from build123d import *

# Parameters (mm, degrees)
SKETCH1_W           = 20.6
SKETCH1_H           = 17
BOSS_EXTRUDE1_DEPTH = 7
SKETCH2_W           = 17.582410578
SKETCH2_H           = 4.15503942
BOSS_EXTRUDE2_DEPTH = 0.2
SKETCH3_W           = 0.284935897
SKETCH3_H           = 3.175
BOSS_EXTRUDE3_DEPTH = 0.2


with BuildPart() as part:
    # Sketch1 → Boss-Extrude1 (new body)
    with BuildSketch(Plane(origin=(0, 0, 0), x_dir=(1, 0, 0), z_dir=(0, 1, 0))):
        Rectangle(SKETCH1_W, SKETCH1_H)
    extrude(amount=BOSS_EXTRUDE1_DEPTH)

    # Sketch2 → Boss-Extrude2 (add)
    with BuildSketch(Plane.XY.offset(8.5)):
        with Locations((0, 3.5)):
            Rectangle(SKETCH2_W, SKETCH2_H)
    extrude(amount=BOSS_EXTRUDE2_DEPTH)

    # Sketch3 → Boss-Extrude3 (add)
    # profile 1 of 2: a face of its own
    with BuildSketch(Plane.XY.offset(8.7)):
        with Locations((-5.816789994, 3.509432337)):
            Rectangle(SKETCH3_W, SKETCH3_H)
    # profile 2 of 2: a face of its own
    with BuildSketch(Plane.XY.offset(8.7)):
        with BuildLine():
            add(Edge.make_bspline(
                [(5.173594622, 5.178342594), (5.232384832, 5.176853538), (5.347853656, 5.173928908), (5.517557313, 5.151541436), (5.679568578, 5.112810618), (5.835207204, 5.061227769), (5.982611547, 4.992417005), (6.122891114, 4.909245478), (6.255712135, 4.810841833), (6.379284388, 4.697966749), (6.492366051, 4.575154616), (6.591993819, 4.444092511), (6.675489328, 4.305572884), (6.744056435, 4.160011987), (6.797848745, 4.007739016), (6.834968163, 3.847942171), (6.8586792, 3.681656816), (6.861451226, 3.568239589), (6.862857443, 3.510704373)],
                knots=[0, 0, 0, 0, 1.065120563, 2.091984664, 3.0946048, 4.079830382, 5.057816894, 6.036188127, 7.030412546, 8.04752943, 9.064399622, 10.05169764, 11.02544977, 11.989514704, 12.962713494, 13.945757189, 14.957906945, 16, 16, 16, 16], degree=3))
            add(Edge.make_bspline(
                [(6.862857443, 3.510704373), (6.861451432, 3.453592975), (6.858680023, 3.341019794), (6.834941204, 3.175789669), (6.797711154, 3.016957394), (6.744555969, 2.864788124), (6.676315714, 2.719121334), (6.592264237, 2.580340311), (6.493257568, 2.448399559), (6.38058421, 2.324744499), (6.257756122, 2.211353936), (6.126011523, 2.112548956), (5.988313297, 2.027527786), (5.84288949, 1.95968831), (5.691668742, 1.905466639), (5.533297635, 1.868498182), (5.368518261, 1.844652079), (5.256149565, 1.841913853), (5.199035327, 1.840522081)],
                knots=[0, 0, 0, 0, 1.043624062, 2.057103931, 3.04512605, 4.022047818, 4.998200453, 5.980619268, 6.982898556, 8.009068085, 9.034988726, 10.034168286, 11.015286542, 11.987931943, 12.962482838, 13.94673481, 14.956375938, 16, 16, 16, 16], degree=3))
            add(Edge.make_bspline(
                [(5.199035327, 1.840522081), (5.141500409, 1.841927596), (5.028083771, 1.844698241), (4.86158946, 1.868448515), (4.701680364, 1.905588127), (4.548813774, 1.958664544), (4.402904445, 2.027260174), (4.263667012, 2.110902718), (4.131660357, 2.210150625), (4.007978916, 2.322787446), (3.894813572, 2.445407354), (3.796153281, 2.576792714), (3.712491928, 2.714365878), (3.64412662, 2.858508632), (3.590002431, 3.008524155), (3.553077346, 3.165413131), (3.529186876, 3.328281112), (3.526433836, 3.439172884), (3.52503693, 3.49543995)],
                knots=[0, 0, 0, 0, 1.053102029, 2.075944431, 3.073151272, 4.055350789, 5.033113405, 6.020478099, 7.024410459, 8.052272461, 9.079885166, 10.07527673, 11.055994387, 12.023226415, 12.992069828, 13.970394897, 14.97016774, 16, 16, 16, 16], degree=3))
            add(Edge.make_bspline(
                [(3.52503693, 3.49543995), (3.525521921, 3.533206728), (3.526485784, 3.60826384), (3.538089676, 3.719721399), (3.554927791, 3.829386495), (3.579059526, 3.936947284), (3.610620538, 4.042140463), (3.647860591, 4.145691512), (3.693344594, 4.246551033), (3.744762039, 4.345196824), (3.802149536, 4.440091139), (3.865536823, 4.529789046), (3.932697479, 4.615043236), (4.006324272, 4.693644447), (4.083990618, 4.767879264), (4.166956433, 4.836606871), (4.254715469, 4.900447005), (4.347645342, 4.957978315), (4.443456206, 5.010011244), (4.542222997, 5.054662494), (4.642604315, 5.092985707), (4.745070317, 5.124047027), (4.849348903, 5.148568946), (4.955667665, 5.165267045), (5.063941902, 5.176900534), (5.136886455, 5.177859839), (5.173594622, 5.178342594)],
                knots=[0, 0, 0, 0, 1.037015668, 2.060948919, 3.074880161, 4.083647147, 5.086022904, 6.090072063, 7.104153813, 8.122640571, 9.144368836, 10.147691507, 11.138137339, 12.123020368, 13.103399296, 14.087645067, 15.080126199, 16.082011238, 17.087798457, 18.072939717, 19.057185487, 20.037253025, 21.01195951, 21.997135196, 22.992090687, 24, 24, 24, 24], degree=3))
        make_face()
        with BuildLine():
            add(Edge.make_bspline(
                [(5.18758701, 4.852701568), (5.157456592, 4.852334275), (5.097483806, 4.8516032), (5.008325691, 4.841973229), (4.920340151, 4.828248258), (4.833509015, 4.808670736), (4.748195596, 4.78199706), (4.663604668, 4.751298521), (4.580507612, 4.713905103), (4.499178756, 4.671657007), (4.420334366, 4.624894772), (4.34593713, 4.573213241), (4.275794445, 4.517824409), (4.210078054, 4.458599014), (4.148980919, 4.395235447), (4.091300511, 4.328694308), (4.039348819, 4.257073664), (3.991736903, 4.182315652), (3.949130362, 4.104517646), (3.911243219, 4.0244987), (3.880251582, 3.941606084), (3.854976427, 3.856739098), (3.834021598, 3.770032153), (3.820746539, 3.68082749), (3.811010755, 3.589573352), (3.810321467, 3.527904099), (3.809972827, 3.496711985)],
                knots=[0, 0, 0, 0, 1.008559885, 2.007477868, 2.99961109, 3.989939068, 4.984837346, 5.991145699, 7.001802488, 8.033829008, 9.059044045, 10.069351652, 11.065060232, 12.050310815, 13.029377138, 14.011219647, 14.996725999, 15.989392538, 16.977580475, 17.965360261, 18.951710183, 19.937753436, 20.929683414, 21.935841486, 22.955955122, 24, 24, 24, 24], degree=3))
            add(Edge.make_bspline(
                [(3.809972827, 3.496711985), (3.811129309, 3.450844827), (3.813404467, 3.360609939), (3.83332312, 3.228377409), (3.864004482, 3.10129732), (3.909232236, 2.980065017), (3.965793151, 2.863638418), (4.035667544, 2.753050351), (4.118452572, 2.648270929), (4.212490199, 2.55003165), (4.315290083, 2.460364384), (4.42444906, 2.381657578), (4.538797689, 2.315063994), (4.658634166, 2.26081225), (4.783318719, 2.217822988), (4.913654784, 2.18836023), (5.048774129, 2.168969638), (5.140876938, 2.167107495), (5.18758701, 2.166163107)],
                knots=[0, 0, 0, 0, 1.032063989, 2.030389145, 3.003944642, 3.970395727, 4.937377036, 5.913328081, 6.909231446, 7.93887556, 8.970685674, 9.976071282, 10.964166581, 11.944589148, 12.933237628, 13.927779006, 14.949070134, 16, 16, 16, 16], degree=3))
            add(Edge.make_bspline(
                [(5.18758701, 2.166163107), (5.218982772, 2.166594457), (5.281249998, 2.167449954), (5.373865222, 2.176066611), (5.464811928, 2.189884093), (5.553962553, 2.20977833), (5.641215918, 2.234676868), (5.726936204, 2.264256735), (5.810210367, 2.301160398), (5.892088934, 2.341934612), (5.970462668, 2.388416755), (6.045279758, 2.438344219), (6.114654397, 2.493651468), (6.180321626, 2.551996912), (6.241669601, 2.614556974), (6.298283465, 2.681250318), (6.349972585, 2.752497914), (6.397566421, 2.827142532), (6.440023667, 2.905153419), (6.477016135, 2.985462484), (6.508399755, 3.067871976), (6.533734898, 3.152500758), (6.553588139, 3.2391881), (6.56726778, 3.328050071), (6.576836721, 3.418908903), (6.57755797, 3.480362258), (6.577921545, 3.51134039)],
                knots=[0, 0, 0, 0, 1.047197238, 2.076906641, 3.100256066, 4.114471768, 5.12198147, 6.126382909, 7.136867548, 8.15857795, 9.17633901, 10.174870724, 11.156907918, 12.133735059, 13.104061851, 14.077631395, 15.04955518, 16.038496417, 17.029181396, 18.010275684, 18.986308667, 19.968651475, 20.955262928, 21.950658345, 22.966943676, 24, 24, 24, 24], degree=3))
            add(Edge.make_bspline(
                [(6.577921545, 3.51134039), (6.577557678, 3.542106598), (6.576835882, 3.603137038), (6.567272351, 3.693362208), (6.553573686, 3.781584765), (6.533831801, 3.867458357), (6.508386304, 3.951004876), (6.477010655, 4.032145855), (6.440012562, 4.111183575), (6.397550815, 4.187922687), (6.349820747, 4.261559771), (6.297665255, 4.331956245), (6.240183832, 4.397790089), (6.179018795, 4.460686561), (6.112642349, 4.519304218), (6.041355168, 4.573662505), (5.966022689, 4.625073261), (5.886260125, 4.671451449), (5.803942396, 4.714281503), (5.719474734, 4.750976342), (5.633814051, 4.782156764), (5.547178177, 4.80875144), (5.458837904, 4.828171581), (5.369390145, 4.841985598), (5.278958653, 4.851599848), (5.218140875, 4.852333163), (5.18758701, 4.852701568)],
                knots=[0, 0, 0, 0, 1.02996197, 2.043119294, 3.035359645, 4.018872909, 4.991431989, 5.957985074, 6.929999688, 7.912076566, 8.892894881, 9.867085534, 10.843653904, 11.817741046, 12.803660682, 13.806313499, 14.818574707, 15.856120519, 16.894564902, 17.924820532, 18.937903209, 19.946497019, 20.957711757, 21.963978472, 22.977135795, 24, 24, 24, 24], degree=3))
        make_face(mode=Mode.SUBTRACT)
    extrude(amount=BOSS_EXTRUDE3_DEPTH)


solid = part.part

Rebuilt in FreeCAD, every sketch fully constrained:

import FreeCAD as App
import Part
import Sketcher


def add_polygon(sketch, points):
    """Adds a closed chain of lines whose ends are joined by coincident constraints."""
    first, n = sketch.GeometryCount, len(points)
    for a, b in zip(points, points[1:] + points[:1]):
        sketch.addGeometry(Part.LineSegment(App.Vector(*a, 0), App.Vector(*b, 0)), False)
    for i in range(n):
        sketch.addConstraint(Sketcher.Constraint("Coincident", first + i, 2, first + (i + 1) % n, 1))

doc = App.newDocument("Part")
body = doc.addObject("PartDesign::Body", "Body")

# Sketch on XZ plane
sketch1 = body.newObject("Sketcher::SketchObject", "Sketch")
sketch1.AttachmentSupport = (doc.getObject("XZ_Plane"), [""])
sketch1.MapMode = "FlatFace"
add_polygon(sketch1, [(-10.3, -8.5), (-10.3, 8.5), (10.3, 8.5), (10.3, -8.5)])  # lines 0-3
sketch1.addConstraint([
    Sketcher.Constraint("Vertical", 0),
    Sketcher.Constraint("Horizontal", 1),
    Sketcher.Constraint("Vertical", 2),
    Sketcher.Constraint("Horizontal", 3),
    Sketcher.Constraint("Symmetric", 0, 2, 2, 2, -1, 1),
    Sketcher.Constraint("DistanceY", 0, 1, 0, 2, 17.0),
    Sketcher.Constraint("DistanceX", 1, 1, 1, 2, 20.6),
])
pad1 = body.newObject("PartDesign::Pad", "Pad")
pad1.Profile = sketch1
pad1.Length = 7
pad1.Reversed = True

# Sketch on XY plane
sketch2 = body.newObject("Sketcher::SketchObject", "Sketch001")
sketch2.AttachmentSupport = (doc.getObject("XY_Plane"), [""])
sketch2.MapMode = "FlatFace"
sketch2.AttachmentOffset = App.Placement(App.Vector(0, 0, 8.5), App.Rotation())
add_polygon(sketch2, [(-8.791205, 5.57752), (-8.791205, 1.42248), (8.791205, 1.42248), (8.791205, 5.57752)])  # lines 0-3
sketch2.addConstraint([
    Sketcher.Constraint("Vertical", 0),
    Sketcher.Constraint("Horizontal", 1),
    Sketcher.Constraint("Vertical", 2),
    Sketcher.Constraint("Horizontal", 3),
    Sketcher.Constraint("DistanceX", 1, 1, 1, 2, 17.582411),
    Sketcher.Constraint("DistanceY", 0, 2, 0, 1, 4.155039),
    Sketcher.Constraint("DistanceY", -1, 1, 0, 2, 1.42248),
    Sketcher.Constraint("DistanceX", 0, 2, -1, 1, 8.791205),
])
pad2 = body.newObject("PartDesign::Pad", "Pad001")
pad2.Profile = sketch2
pad2.Length = 0.2

# Sketch on XY plane
sketch3 = body.newObject("Sketcher::SketchObject", "Sketch002")
sketch3.AttachmentSupport = (doc.getObject("XY_Plane"), [""])
sketch3.MapMode = "FlatFace"
sketch3.AttachmentOffset = App.Placement(App.Vector(0, 0, 8.7), App.Rotation())
add_polygon(sketch3, [(-5.959258, 5.096932), (-5.959258, 1.921932), (-5.674322, 1.921932), (-5.674322, 5.096932)])  # lines 0-3
sketch3.addGeometry(Part.BSplineCurve([App.Vector(5.173595, 5.178343, 0), App.Vector(5.232385, 5.176854, 0), App.Vector(5.347854, 5.173929, 0), App.Vector(5.517557, 5.151541, 0), App.Vector(5.679569, 5.112811, 0), App.Vector(5.835207, 5.061228, 0), App.Vector(5.982612, 4.992417, 0), App.Vector(6.122891, 4.909245, 0), App.Vector(6.255712, 4.810842, 0), App.Vector(6.379284, 4.697967, 0), App.Vector(6.492366, 4.575155, 0), App.Vector(6.591994, 4.444093, 0), App.Vector(6.675489, 4.305573, 0), App.Vector(6.744056, 4.160012, 0), App.Vector(6.797849, 4.007739, 0), App.Vector(6.834968, 3.847942, 0), App.Vector(6.858679, 3.681657, 0), App.Vector(6.861451, 3.56824, 0), App.Vector(6.862857, 3.510704, 0)], [4, 1, 1, 1, 1, 1, 1, 1, 1, 1, 1, 1, 1, 1, 1, 1, 4], [0, 1.065120563, 2.091984664, 3.0946048, 4.079830382, 5.057816894, 6.036188127, 7.030412546, 8.04752943, 9.064399622, 10.05169764, 11.02544977, 11.989514704, 12.962713494, 13.945757189, 14.957906945, 16], False, 3, [1, 1, 1, 1, 1, 1, 1, 1, 1, 1, 1, 1, 1, 1, 1, 1, 1, 1, 1], False), False)  # 4
sketch3.addGeometry(Part.BSplineCurve([App.Vector(3.525037, 3.49544, 0), App.Vector(3.525522, 3.533207, 0), App.Vector(3.526486, 3.608264, 0), App.Vector(3.53809, 3.719721, 0), App.Vector(3.554928, 3.829386, 0), App.Vector(3.57906, 3.936947, 0), App.Vector(3.610621, 4.04214, 0), App.Vector(3.647861, 4.145692, 0), App.Vector(3.693345, 4.246551, 0), App.Vector(3.744762, 4.345197, 0), App.Vector(3.80215, 4.440091, 0), App.Vector(3.865537, 4.529789, 0), App.Vector(3.932697, 4.615043, 0), App.Vector(4.006324, 4.693644, 0), App.Vector(4.083991, 4.767879, 0), App.Vector(4.166956, 4.836607, 0), App.Vector(4.254715, 4.900447, 0), App.Vector(4.347645, 4.957978, 0), App.Vector(4.443456, 5.010011, 0), App.Vector(4.542223, 5.054662, 0), App.Vector(4.642604, 5.092986, 0), App.Vector(4.74507, 5.124047, 0), App.Vector(4.849349, 5.148569, 0), App.Vector(4.955668, 5.165267, 0), App.Vector(5.063942, 5.176901, 0), App.Vector(5.136886, 5.17786, 0), App.Vector(5.173595, 5.178343, 0)], [4, 1, 1, 1, 1, 1, 1, 1, 1, 1, 1, 1, 1, 1, 1, 1, 1, 1, 1, 1, 1, 1, 1, 1, 4], [0, 1.037015668, 2.060948919, 3.074880161, 4.083647147, 5.086022904, 6.090072063, 7.104153813, 8.122640571, 9.144368836, 10.147691507, 11.138137339, 12.123020368, 13.103399296, 14.087645067, 15.080126199, 16.082011238, 17.087798457, 18.072939717, 19.057185487, 20.037253025, 21.01195951, 21.997135196, 22.992090687, 24], False, 3, [1, 1, 1, 1, 1, 1, 1, 1, 1, 1, 1, 1, 1, 1, 1, 1, 1, 1, 1, 1, 1, 1, 1, 1, 1, 1, 1], False), False)  # 5
sketch3.addGeometry(Part.BSplineCurve([App.Vector(5.199035, 1.840522, 0), App.Vector(5.1415, 1.841928, 0), App.Vector(5.028084, 1.844698, 0), App.Vector(4.861589, 1.868449, 0), App.Vector(4.70168, 1.905588, 0), App.Vector(4.548814, 1.958665, 0), App.Vector(4.402904, 2.02726, 0), App.Vector(4.263667, 2.110903, 0), App.Vector(4.13166, 2.210151, 0), App.Vector(4.007979, 2.322787, 0), App.Vector(3.894814, 2.445407, 0), App.Vector(3.796153, 2.576793, 0), App.Vector(3.712492, 2.714366, 0), App.Vector(3.644127, 2.858509, 0), App.Vector(3.590002, 3.008524, 0), App.Vector(3.553077, 3.165413, 0), App.Vector(3.529187, 3.328281, 0), App.Vector(3.526434, 3.439173, 0), App.Vector(3.525037, 3.49544, 0)], [4, 1, 1, 1, 1, 1, 1, 1, 1, 1, 1, 1, 1, 1, 1, 1, 4], [0, 1.053102029, 2.075944431, 3.073151272, 4.055350789, 5.033113405, 6.020478099, 7.024410459, 8.052272461, 9.079885166, 10.07527673, 11.055994387, 12.023226415, 12.992069828, 13.970394897, 14.97016774, 16], False, 3, [1, 1, 1, 1, 1, 1, 1, 1, 1, 1, 1, 1, 1, 1, 1, 1, 1, 1, 1], False), False)  # 6
sketch3.addGeometry(Part.BSplineCurve([App.Vector(6.862857, 3.510704, 0), App.Vector(6.861451, 3.453593, 0), App.Vector(6.85868, 3.34102, 0), App.Vector(6.834941, 3.17579, 0), App.Vector(6.797711, 3.016957, 0), App.Vector(6.744556, 2.864788, 0), App.Vector(6.676316, 2.719121, 0), App.Vector(6.592264, 2.58034, 0), App.Vector(6.493258, 2.4484, 0), App.Vector(6.380584, 2.324744, 0), App.Vector(6.257756, 2.211354, 0), App.Vector(6.126012, 2.112549, 0), App.Vector(5.988313, 2.027528, 0), App.Vector(5.842889, 1.959688, 0), App.Vector(5.691669, 1.905467, 0), App.Vector(5.533298, 1.868498, 0), App.Vector(5.368518, 1.844652, 0), App.Vector(5.25615, 1.841914, 0), App.Vector(5.199035, 1.840522, 0)], [4, 1, 1, 1, 1, 1, 1, 1, 1, 1, 1, 1, 1, 1, 1, 1, 4], [0, 1.043624062, 2.057103931, 3.04512605, 4.022047818, 4.998200453, 5.980619268, 6.982898556, 8.009068085, 9.034988726, 10.034168286, 11.015286542, 11.987931943, 12.962482838, 13.94673481, 14.956375938, 16], False, 3, [1, 1, 1, 1, 1, 1, 1, 1, 1, 1, 1, 1, 1, 1, 1, 1, 1, 1, 1], False), False)  # 7
sketch3.addGeometry(Part.BSplineCurve([App.Vector(6.577922, 3.51134, 0), App.Vector(6.577558, 3.542107, 0), App.Vector(6.576836, 3.603137, 0), App.Vector(6.567272, 3.693362, 0), App.Vector(6.553574, 3.781585, 0), App.Vector(6.533832, 3.867458, 0), App.Vector(6.508386, 3.951005, 0), App.Vector(6.477011, 4.032146, 0), App.Vector(6.440013, 4.111184, 0), App.Vector(6.397551, 4.187923, 0), App.Vector(6.349821, 4.26156, 0), App.Vector(6.297665, 4.331956, 0), App.Vector(6.240184, 4.39779, 0), App.Vector(6.179019, 4.460687, 0), App.Vector(6.112642, 4.519304, 0), App.Vector(6.041355, 4.573663, 0), App.Vector(5.966023, 4.625073, 0), App.Vector(5.88626, 4.671451, 0), App.Vector(5.803942, 4.714282, 0), App.Vector(5.719475, 4.750976, 0), App.Vector(5.633814, 4.782157, 0), App.Vector(5.547178, 4.808751, 0), App.Vector(5.458838, 4.828172, 0), App.Vector(5.36939, 4.841986, 0), App.Vector(5.278959, 4.8516, 0), App.Vector(5.218141, 4.852333, 0), App.Vector(5.187587, 4.852702, 0)], [4, 1, 1, 1, 1, 1, 1, 1, 1, 1, 1, 1, 1, 1, 1, 1, 1, 1, 1, 1, 1, 1, 1, 1, 4], [0, 1.02996197, 2.043119294, 3.035359645, 4.018872909, 4.991431989, 5.957985074, 6.929999688, 7.912076566, 8.892894881, 9.867085534, 10.843653904, 11.817741046, 12.803660682, 13.806313499, 14.818574707, 15.856120519, 16.894564902, 17.924820532, 18.937903209, 19.946497019, 20.957711757, 21.963978472, 22.977135795, 24], False, 3, [1, 1, 1, 1, 1, 1, 1, 1, 1, 1, 1, 1, 1, 1, 1, 1, 1, 1, 1, 1, 1, 1, 1, 1, 1, 1, 1], False), False)  # 8
sketch3.addGeometry(Part.BSplineCurve([App.Vector(5.187587, 2.166163, 0), App.Vector(5.218983, 2.166594, 0), App.Vector(5.28125, 2.16745, 0), App.Vector(5.373865, 2.176067, 0), App.Vector(5.464812, 2.189884, 0), App.Vector(5.553963, 2.209778, 0), App.Vector(5.641216, 2.234677, 0), App.Vector(5.726936, 2.264257, 0), App.Vector(5.81021, 2.30116, 0), App.Vector(5.892089, 2.341935, 0), App.Vector(5.970463, 2.388417, 0), App.Vector(6.04528, 2.438344, 0), App.Vector(6.114654, 2.493651, 0), App.Vector(6.180322, 2.551997, 0), App.Vector(6.24167, 2.614557, 0), App.Vector(6.298283, 2.68125, 0), App.Vector(6.349973, 2.752498, 0), App.Vector(6.397566, 2.827143, 0), App.Vector(6.440024, 2.905153, 0), App.Vector(6.477016, 2.985462, 0), App.Vector(6.5084, 3.067872, 0), App.Vector(6.533735, 3.152501, 0), App.Vector(6.553588, 3.239188, 0), App.Vector(6.567268, 3.32805, 0), App.Vector(6.576837, 3.418909, 0), App.Vector(6.577558, 3.480362, 0), App.Vector(6.577922, 3.51134, 0)], [4, 1, 1, 1, 1, 1, 1, 1, 1, 1, 1, 1, 1, 1, 1, 1, 1, 1, 1, 1, 1, 1, 1, 1, 4], [0, 1.047197238, 2.076906641, 3.100256066, 4.114471768, 5.12198147, 6.126382909, 7.136867548, 8.15857795, 9.17633901, 10.174870724, 11.156907918, 12.133735059, 13.104061851, 14.077631395, 15.04955518, 16.038496417, 17.029181396, 18.010275684, 18.986308667, 19.968651475, 20.955262928, 21.950658345, 22.966943676, 24], False, 3, [1, 1, 1, 1, 1, 1, 1, 1, 1, 1, 1, 1, 1, 1, 1, 1, 1, 1, 1, 1, 1, 1, 1, 1, 1, 1, 1], False), False)  # 9
sketch3.addGeometry(Part.BSplineCurve([App.Vector(3.809973, 3.496712, 0), App.Vector(3.811129, 3.450845, 0), App.Vector(3.813404, 3.36061, 0), App.Vector(3.833323, 3.228377, 0), App.Vector(3.864004, 3.101297, 0), App.Vector(3.909232, 2.980065, 0), App.Vector(3.965793, 2.863638, 0), App.Vector(4.035668, 2.75305, 0), App.Vector(4.118453, 2.648271, 0), App.Vector(4.21249, 2.550032, 0), App.Vector(4.31529, 2.460364, 0), App.Vector(4.424449, 2.381658, 0), App.Vector(4.538798, 2.315064, 0), App.Vector(4.658634, 2.260812, 0), App.Vector(4.783319, 2.217823, 0), App.Vector(4.913655, 2.18836, 0), App.Vector(5.048774, 2.16897, 0), App.Vector(5.140877, 2.167107, 0), App.Vector(5.187587, 2.166163, 0)], [4, 1, 1, 1, 1, 1, 1, 1, 1, 1, 1, 1, 1, 1, 1, 1, 4], [0, 1.032063989, 2.030389145, 3.003944642, 3.970395727, 4.937377036, 5.913328081, 6.909231446, 7.93887556, 8.970685674, 9.976071282, 10.964166581, 11.944589148, 12.933237628, 13.927779006, 14.949070134, 16], False, 3, [1, 1, 1, 1, 1, 1, 1, 1, 1, 1, 1, 1, 1, 1, 1, 1, 1, 1, 1], False), False)  # 10
sketch3.addGeometry(Part.BSplineCurve([App.Vector(5.187587, 4.852702, 0), App.Vector(5.157457, 4.852334, 0), App.Vector(5.097484, 4.851603, 0), App.Vector(5.008326, 4.841973, 0), App.Vector(4.92034, 4.828248, 0), App.Vector(4.833509, 4.808671, 0), App.Vector(4.748196, 4.781997, 0), App.Vector(4.663605, 4.751299, 0), App.Vector(4.580508, 4.713905, 0), App.Vector(4.499179, 4.671657, 0), App.Vector(4.420334, 4.624895, 0), App.Vector(4.345937, 4.573213, 0), App.Vector(4.275794, 4.517824, 0), App.Vector(4.210078, 4.458599, 0), App.Vector(4.148981, 4.395235, 0), App.Vector(4.091301, 4.328694, 0), App.Vector(4.039349, 4.257074, 0), App.Vector(3.991737, 4.182316, 0), App.Vector(3.94913, 4.104518, 0), App.Vector(3.911243, 4.024499, 0), App.Vector(3.880252, 3.941606, 0), App.Vector(3.854976, 3.856739, 0), App.Vector(3.834022, 3.770032, 0), App.Vector(3.820747, 3.680827, 0), App.Vector(3.811011, 3.589573, 0), App.Vector(3.810321, 3.527904, 0), App.Vector(3.809973, 3.496712, 0)], [4, 1, 1, 1, 1, 1, 1, 1, 1, 1, 1, 1, 1, 1, 1, 1, 1, 1, 1, 1, 1, 1, 1, 1, 4], [0, 1.008559885, 2.007477868, 2.99961109, 3.989939068, 4.984837346, 5.991145699, 7.001802488, 8.033829008, 9.059044045, 10.069351652, 11.065060232, 12.050310815, 13.029377138, 14.011219647, 14.996725999, 15.989392538, 16.977580475, 17.965360261, 18.951710183, 19.937753436, 20.929683414, 21.935841486, 22.955955122, 24], False, 3, [1, 1, 1, 1, 1, 1, 1, 1, 1, 1, 1, 1, 1, 1, 1, 1, 1, 1, 1, 1, 1, 1, 1, 1, 1, 1, 1], False), False)  # 11
sketch3.addConstraint([
    Sketcher.Constraint("Block", 4),
    Sketcher.Constraint("Block", 5),
    Sketcher.Constraint("Block", 6),
    Sketcher.Constraint("Block", 7),
    Sketcher.Constraint("Block", 8),
    Sketcher.Constraint("Block", 9),
    Sketcher.Constraint("Block", 10),
    Sketcher.Constraint("Block", 11),
    Sketcher.Constraint("Vertical", 0),
    Sketcher.Constraint("Horizontal", 1),
    Sketcher.Constraint("Vertical", 2),
    Sketcher.Constraint("Horizontal", 3),
    Sketcher.Constraint("DistanceY", 0, 2, 0, 1, 3.175),
    Sketcher.Constraint("DistanceX", 1, 1, 1, 2, 0.284936),
    Sketcher.Constraint("DistanceX", 0, 2, -1, 1, 5.959258),
    Sketcher.Constraint("DistanceY", -1, 1, 0, 2, 1.921932),
])
pad3 = body.newObject("PartDesign::Pad", "Pad002")
pad3.Profile = sketch3
pad3.Length = 0.2

doc.recompute()
